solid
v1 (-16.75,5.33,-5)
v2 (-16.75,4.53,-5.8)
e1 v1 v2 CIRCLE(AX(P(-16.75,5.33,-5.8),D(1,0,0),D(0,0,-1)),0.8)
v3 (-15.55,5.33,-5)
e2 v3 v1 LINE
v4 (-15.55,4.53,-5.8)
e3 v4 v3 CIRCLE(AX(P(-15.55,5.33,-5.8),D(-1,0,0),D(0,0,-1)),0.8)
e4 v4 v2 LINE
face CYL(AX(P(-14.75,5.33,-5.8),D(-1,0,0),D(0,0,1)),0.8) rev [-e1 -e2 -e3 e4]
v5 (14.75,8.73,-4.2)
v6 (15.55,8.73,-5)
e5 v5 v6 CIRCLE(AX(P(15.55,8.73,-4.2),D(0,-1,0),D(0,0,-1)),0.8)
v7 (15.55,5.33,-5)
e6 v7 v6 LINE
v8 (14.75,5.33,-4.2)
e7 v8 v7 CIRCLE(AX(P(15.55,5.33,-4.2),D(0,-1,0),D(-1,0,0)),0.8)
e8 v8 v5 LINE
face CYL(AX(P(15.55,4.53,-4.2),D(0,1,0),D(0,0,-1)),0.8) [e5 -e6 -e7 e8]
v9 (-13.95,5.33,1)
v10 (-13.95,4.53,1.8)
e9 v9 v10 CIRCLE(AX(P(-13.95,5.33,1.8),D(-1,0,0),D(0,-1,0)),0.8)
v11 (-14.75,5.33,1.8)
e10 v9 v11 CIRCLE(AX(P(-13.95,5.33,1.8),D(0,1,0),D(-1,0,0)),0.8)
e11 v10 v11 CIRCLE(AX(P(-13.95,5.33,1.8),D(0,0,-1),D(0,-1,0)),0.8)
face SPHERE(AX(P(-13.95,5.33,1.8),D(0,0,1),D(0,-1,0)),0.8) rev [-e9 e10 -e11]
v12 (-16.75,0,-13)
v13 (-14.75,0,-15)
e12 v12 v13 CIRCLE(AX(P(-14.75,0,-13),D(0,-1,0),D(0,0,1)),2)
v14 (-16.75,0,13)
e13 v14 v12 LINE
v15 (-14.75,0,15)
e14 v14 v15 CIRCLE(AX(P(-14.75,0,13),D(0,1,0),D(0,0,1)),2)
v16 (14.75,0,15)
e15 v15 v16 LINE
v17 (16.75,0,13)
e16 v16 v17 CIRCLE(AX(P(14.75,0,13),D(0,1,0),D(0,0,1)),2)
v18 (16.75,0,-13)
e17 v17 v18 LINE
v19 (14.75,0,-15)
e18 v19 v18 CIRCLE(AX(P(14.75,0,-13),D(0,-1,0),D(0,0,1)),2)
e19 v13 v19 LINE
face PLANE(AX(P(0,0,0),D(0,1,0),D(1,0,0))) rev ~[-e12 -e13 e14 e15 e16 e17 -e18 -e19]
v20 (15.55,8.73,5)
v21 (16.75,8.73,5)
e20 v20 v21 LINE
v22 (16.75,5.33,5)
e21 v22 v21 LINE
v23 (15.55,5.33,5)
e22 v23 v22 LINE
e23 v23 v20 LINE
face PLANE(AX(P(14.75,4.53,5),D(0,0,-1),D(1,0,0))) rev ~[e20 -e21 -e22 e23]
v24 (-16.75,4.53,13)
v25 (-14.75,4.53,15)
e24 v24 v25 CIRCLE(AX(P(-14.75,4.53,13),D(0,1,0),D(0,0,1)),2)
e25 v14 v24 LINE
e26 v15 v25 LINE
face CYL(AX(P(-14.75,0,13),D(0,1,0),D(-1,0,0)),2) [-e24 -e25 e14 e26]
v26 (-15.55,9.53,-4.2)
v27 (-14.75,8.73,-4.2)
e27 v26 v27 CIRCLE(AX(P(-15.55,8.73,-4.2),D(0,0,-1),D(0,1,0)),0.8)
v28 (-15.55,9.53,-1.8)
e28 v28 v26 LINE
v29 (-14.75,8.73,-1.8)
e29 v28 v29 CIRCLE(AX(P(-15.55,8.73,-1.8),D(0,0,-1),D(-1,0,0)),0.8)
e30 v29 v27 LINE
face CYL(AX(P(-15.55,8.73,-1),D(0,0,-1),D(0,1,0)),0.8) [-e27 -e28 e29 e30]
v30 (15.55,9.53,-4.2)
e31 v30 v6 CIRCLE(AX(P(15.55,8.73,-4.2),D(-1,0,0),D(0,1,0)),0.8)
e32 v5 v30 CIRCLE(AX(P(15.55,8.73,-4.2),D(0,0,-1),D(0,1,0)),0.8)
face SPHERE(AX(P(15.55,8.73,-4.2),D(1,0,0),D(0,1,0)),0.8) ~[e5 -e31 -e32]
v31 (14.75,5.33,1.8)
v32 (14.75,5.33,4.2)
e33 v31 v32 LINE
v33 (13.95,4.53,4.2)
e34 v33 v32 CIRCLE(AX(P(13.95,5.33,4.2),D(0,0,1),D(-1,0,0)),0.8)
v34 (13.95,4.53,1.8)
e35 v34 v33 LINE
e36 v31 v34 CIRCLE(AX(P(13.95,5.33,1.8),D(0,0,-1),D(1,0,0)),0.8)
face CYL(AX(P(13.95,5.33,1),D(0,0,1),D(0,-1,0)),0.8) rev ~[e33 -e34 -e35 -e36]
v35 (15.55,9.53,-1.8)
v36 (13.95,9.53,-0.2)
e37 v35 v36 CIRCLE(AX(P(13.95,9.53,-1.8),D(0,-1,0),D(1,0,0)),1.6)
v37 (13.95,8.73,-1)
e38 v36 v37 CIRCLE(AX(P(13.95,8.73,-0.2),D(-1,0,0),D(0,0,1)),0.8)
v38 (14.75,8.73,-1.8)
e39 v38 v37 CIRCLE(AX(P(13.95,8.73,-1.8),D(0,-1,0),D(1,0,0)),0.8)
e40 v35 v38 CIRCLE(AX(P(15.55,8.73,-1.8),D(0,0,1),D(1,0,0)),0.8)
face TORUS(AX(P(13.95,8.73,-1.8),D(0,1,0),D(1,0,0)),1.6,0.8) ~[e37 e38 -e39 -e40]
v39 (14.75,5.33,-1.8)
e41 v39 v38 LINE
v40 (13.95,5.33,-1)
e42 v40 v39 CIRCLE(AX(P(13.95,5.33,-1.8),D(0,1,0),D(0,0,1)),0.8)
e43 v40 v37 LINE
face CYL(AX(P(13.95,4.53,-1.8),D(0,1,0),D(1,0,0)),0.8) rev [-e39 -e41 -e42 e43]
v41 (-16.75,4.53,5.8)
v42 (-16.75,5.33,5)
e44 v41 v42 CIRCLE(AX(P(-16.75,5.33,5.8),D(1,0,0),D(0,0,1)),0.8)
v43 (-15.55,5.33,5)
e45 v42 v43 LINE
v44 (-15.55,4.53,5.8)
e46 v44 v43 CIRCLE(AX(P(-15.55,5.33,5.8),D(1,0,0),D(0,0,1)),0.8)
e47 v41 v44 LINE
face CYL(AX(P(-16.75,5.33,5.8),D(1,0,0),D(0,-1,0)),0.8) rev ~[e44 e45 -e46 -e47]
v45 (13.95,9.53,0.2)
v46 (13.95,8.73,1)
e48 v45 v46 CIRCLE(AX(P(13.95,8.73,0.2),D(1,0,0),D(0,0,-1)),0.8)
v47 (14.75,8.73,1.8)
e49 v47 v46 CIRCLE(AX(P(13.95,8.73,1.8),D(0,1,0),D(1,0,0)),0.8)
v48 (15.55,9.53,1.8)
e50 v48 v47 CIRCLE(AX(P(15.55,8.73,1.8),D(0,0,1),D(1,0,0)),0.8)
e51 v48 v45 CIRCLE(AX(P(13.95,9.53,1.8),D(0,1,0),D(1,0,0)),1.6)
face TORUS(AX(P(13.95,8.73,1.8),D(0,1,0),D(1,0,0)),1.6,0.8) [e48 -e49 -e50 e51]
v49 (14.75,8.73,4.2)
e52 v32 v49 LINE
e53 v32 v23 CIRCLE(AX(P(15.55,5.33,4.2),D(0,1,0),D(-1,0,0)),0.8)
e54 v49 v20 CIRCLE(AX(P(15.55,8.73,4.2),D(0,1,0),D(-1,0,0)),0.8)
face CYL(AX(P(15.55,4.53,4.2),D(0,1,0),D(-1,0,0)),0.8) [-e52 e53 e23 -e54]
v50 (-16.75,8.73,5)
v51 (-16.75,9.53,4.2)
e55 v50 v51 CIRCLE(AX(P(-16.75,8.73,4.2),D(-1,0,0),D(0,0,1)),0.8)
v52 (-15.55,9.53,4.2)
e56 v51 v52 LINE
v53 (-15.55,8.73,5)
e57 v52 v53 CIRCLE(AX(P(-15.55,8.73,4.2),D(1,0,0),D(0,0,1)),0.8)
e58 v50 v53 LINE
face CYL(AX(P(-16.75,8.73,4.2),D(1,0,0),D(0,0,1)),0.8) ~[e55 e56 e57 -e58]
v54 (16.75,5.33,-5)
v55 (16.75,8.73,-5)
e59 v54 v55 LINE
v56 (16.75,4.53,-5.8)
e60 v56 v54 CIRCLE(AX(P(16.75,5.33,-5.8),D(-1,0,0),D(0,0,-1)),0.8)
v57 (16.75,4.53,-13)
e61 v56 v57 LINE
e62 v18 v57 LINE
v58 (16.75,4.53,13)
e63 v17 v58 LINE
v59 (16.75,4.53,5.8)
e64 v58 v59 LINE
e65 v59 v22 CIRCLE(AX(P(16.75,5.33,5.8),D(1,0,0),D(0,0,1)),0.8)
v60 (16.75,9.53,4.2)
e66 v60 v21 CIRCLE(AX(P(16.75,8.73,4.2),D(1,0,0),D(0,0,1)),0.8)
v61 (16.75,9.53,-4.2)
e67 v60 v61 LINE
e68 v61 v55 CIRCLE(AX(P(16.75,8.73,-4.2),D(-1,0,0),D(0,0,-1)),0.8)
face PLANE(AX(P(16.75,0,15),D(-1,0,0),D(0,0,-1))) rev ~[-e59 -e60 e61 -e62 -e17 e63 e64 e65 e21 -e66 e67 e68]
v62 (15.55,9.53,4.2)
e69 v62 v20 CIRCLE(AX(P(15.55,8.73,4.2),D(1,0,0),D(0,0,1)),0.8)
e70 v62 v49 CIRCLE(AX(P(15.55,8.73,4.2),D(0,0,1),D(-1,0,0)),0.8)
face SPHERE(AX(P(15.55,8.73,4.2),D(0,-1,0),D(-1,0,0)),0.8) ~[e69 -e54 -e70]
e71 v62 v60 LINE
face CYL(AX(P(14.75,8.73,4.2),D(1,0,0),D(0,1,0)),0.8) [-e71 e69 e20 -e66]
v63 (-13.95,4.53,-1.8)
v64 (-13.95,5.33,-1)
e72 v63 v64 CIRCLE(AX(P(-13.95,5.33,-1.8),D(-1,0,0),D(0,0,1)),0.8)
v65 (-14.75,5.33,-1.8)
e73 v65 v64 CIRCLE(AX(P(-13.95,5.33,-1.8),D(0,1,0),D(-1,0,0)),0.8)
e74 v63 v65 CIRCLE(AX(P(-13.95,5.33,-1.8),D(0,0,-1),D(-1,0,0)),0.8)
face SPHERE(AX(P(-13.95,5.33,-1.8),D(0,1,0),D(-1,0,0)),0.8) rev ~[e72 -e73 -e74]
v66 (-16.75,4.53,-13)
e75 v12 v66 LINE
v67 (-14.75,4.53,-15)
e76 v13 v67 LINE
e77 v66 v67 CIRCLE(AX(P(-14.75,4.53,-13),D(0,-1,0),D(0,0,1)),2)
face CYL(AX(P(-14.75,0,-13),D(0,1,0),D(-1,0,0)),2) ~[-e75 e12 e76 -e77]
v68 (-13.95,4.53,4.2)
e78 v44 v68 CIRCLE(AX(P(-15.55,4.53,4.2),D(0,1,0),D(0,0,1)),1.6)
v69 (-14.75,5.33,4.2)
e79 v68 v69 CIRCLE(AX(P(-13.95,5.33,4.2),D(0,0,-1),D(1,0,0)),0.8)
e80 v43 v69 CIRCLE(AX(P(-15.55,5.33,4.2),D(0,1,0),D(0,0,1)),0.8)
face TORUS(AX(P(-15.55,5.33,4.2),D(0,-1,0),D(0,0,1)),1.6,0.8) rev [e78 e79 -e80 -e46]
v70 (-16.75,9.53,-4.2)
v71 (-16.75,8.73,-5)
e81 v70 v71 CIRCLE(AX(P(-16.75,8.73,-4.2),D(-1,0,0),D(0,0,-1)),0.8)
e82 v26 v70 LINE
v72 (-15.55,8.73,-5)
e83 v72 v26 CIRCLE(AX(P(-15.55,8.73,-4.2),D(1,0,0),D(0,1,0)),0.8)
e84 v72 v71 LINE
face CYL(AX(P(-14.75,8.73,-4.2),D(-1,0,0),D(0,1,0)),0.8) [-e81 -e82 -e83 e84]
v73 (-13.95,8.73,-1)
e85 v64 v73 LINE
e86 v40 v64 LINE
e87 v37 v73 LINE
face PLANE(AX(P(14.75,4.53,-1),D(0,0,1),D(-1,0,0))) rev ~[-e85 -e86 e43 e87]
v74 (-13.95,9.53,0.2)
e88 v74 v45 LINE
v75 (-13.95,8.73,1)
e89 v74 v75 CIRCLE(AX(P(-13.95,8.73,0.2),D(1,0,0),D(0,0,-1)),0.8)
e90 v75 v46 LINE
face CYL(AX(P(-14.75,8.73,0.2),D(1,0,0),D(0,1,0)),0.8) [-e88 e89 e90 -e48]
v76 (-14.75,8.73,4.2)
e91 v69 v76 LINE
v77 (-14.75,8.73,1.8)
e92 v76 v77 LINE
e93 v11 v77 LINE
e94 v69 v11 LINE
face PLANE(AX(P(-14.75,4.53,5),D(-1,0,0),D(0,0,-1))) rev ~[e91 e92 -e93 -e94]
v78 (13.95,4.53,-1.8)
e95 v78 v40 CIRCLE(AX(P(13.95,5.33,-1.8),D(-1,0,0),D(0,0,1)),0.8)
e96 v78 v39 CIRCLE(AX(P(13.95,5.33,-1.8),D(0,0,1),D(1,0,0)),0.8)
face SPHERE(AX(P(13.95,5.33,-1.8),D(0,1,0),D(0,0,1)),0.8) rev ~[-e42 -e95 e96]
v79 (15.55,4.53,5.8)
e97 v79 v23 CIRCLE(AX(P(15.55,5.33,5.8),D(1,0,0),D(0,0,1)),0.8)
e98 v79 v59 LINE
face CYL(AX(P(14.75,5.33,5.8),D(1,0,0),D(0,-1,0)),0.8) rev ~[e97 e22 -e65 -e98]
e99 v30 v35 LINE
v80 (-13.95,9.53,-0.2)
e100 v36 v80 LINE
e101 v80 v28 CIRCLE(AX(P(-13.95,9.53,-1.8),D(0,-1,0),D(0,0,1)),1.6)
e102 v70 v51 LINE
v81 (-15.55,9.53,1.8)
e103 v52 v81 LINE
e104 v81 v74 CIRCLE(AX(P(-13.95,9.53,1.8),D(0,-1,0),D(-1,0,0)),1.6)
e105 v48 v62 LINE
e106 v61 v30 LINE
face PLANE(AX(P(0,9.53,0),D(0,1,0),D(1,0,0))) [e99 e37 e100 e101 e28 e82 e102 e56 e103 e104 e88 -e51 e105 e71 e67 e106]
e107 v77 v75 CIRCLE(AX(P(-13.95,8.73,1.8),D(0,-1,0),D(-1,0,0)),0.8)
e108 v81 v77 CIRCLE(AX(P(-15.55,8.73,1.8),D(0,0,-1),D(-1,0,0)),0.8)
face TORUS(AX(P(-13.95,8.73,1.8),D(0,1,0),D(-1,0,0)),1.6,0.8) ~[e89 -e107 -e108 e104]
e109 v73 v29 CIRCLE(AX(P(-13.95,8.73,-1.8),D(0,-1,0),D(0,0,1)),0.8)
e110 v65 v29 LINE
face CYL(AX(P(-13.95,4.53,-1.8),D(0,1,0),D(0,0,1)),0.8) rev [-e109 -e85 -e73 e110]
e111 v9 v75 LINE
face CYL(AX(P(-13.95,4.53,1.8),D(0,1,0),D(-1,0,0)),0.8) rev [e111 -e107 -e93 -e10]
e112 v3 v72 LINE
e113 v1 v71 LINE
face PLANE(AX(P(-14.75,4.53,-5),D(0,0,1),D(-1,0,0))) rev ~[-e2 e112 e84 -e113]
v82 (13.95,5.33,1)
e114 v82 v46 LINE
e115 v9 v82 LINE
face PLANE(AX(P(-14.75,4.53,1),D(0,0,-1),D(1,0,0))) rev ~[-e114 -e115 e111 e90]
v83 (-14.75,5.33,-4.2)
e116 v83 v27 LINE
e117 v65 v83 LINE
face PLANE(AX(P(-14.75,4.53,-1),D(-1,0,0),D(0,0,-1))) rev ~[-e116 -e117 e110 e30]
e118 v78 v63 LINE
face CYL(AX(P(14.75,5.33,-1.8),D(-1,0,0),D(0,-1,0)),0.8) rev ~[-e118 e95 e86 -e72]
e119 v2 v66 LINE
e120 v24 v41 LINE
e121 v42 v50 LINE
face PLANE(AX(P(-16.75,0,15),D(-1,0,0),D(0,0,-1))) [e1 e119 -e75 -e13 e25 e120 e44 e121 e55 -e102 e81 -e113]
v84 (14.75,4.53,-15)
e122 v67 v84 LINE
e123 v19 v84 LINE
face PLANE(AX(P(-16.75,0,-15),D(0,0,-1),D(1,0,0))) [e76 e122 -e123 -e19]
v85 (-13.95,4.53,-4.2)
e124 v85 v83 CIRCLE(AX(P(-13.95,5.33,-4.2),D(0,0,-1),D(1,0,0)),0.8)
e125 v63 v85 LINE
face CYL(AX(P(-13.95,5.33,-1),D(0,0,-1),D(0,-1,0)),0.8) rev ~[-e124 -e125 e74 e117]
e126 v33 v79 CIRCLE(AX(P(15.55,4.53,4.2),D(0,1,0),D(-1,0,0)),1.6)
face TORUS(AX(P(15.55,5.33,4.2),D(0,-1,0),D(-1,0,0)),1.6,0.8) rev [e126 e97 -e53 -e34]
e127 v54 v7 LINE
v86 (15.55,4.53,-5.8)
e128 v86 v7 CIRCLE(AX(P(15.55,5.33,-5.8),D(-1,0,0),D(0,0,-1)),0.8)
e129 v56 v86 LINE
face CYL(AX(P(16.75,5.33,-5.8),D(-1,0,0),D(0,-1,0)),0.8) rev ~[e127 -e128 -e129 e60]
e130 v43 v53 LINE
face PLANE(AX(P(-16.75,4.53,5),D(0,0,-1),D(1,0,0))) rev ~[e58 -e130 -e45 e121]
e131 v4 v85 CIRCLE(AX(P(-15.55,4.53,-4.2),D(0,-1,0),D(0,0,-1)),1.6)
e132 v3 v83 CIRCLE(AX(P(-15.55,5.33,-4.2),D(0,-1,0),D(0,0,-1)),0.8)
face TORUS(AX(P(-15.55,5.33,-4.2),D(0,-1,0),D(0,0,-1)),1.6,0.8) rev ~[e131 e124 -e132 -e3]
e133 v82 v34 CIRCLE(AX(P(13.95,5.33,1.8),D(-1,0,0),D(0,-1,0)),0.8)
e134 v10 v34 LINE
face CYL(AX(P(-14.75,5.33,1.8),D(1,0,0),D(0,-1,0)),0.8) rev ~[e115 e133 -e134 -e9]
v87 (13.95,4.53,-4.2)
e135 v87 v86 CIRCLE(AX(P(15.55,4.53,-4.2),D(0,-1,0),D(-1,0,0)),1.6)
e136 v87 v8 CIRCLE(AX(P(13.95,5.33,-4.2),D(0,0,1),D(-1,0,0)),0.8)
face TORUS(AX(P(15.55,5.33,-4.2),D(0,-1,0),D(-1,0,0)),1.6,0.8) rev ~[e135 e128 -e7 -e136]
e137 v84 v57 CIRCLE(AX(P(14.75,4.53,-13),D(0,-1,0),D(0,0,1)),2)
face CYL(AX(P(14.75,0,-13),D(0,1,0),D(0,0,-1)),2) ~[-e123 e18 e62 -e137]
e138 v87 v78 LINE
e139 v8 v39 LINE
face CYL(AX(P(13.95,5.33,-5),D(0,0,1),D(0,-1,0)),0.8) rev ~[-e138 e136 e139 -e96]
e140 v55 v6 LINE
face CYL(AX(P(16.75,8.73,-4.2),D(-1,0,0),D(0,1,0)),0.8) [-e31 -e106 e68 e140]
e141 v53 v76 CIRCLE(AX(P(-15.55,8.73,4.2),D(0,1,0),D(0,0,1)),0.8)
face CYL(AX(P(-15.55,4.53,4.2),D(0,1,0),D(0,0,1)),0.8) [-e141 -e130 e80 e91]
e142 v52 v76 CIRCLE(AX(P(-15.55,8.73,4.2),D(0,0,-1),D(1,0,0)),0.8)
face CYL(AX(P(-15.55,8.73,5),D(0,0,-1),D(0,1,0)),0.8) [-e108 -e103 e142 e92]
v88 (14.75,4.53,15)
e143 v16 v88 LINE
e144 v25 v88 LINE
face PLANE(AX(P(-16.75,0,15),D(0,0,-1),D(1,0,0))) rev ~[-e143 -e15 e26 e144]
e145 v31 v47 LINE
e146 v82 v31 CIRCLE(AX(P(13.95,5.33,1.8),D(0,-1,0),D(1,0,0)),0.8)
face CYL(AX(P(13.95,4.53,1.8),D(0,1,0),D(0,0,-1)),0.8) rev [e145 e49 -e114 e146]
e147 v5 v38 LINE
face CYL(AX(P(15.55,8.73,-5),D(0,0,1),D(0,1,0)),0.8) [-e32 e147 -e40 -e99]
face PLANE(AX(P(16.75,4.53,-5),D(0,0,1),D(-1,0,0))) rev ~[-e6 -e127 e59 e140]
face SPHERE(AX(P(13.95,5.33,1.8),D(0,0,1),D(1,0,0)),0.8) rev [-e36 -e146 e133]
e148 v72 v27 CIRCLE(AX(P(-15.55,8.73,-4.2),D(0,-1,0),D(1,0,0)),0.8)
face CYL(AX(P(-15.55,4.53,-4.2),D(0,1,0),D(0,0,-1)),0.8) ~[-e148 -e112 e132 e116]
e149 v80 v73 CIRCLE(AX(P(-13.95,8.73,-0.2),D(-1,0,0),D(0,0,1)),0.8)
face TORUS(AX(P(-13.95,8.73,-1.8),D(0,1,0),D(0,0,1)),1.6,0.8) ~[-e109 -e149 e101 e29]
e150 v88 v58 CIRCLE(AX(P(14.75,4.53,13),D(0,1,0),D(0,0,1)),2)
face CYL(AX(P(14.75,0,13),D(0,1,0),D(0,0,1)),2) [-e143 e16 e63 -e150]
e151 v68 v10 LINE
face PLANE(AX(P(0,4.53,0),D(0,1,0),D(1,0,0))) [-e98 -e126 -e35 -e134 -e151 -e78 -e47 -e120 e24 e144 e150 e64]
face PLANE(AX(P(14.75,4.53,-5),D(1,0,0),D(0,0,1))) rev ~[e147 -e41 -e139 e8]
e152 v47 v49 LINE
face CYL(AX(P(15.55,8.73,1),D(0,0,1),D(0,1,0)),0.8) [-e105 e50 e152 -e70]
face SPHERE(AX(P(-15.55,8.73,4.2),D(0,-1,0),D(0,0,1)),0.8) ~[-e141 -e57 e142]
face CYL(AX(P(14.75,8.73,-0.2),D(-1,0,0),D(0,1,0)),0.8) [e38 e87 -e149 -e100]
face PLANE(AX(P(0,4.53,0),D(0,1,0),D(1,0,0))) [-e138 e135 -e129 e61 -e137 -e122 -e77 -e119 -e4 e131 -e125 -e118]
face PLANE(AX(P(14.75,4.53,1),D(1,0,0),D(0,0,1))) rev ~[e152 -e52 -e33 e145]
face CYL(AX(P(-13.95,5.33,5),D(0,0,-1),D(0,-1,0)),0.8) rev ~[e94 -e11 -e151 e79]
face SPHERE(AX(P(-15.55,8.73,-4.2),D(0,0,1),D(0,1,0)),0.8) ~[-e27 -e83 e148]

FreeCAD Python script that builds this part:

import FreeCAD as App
import Part
import Sketcher
from FreeCAD import Vector
Q = App.Units.Quantity


def edges_at(feature, points):
    """Names of the edges that pass closest to the given points."""
    edges = feature.Shape.Edges
    near = lambda p: min(range(len(edges)), key=lambda i: edges[i].distToShape(Part.Vertex(*p))[0])
    return sorted({f"Edge{near(p) + 1}" for p in points})


def add_polygon(sketch, points):
    """Adds a closed chain of lines whose ends are joined by coincident constraints."""
    first, n = sketch.GeometryCount, len(points)
    for a, b in zip(points, points[1:] + points[:1]):
        sketch.addGeometry(Part.LineSegment(App.Vector(*a, 0), App.Vector(*b, 0)), False)
    for i in range(n):
        sketch.addConstraint(Sketcher.Constraint("Coincident", first + i, 2, first + (i + 1) % n, 1))

doc = App.newDocument("Part")
body = doc.addObject("PartDesign::Body", "Body")

sketch1 = body.newObject("Sketcher::SketchObject", "Sketch")
sketch1.AttachmentSupport = (doc.getObject("XZ_Plane"), [""])
sketch1.MapMode = "FlatFace"
add_polygon(sketch1, [(-17, -15), (-17, 15), (17, 15), (17, -15)])
sketch1.addConstraint(Sketcher.Constraint("Vertical", 0))
sketch1.addConstraint(Sketcher.Constraint("Horizontal", 1))
sketch1.addConstraint(Sketcher.Constraint("Vertical", 2))
sketch1.addConstraint(Sketcher.Constraint("Horizontal", 3))
sketch1.addConstraint(Sketcher.Constraint("Symmetric", 0, 2, 2, 2, -1, 1))
sketch1.addConstraint(Sketcher.Constraint("DistanceY", 0, 1, 0, 2, Q("30 mm")))
sketch1.addConstraint(Sketcher.Constraint("DistanceX", 1, 1, 1, 2, Q("33.5 mm")))
pad1 = body.newObject("PartDesign::Pad", "Pad")
pad1.Profile = sketch1
pad1.Length = 4.53
pad1.Reversed = True

sketch2 = body.newObject("Sketcher::SketchObject", "Sketch001")
sketch2.AttachmentSupport = (doc.getObject("XZ_Plane"), [""])
sketch2.MapMode = "FlatFace"
sketch2.AttachmentOffset = App.Placement(Vector(0, 0, -4.53), App.Rotation())
add_polygon(sketch2, [(-14.8, -5), (-16.8, -5), (-16.8, 5), (-14.8, 5), (-14.8, 1), (14.8, 1), (14.8, 5), (16.8, 5), (16.8, -5), (14.8, -5), (14.8, -1), (-14.8, -1)])
sketch2.addConstraint(Sketcher.Constraint("Horizontal", 0))
sketch2.addConstraint(Sketcher.Constraint("Vertical", 1))
sketch2.addConstraint(Sketcher.Constraint("Horizontal", 2))
sketch2.addConstraint(Sketcher.Constraint("Vertical", 3))
sketch2.addConstraint(Sketcher.Constraint("Horizontal", 4))
sketch2.addConstraint(Sketcher.Constraint("Vertical", 5))
sketch2.addConstraint(Sketcher.Constraint("Horizontal", 6))
sketch2.addConstraint(Sketcher.Constraint("Vertical", 7))
sketch2.addConstraint(Sketcher.Constraint("Horizontal", 8))
sketch2.addConstraint(Sketcher.Constraint("Vertical", 9))
sketch2.addConstraint(Sketcher.Constraint("Horizontal", 10))
sketch2.addConstraint(Sketcher.Constraint("Vertical", 11))
sketch2.addConstraint(Sketcher.Constraint("Symmetric", 0, 2, 6, 2, -1, 1))
sketch2.addConstraint(Sketcher.Constraint("Symmetric", 2, 2, 8, 2, -1, 1))
sketch2.addConstraint(Sketcher.Constraint("Symmetric", 4, 2, 10, 2, -1, 1))
sketch2.addConstraint(Sketcher.Constraint("Symmetric", 2, 2, 5, 2, -2))
sketch2.addConstraint(Sketcher.Constraint("DistanceX", 0, 2, 0, 1, Q("2 mm")))
sketch2.addConstraint(Sketcher.Constraint("DistanceY", 1, 1, 1, 2, Q("10 mm")))
sketch2.addConstraint(Sketcher.Constraint("DistanceY", 3, 2, 3, 1, Q("4 mm")))
sketch2.addConstraint(Sketcher.Constraint("DistanceX", 4, 1, 4, 2, Q("29.5 mm")))
pad2 = body.newObject("PartDesign::Pad", "Pad001")
pad2.Profile = sketch2
pad2.Length = 5
pad2.Reversed = True
doc.recompute()

fillet = body.newObject("PartDesign::Fillet", "Fillet")
fillet.Base = (pad2, edges_at(pad2, [
    (16.75, 2.265, 15),
    (-16.75, 2.265, 15),
    (-16.75, 2.265, -15),
    (16.75, 2.265, -15),
]))
fillet.Radius = 2
doc.recompute()

fillet2 = body.newObject("PartDesign::Fillet", "Fillet001")
fillet2.Base = (fillet, edges_at(fillet, [
    (14.75, 4.53, 3),
    (14.75, 7.03, 1),
    (15.75, 4.53, 5),
    (14.75, 7.03, 5),
    (15.75, 9.53, -5),
    (14.75, 9.53, -3),
    (14.75, 7.03, -5),
    (0, 9.53, -1),
    (14.75, 7.03, -1),
    (-14.75, 9.53, -3),
    (-14.75, 7.03, -1),
    (-15.75, 9.53, -5),
    (-14.75, 7.03, -5),
    (-15.75, 4.53, 5),
    (-14.75, 4.53, 3),
    (-14.75, 7.03, 5),
    (0, 4.53, 1),
    (-14.75, 7.03, 1),
    (14.75, 9.53, 3),
    (15.75, 9.53, 5),
    (-15.75, 9.53, 5),
    (-14.75, 9.53, 3),
    (0, 9.53, 1),
    (-15.75, 4.53, -5),
    (-14.75, 4.53, -3),
    (0, 4.53, -1),
    (14.75, 4.53, -3),
    (15.75, 4.53, -5),
]))
fillet2.Radius = 0.8

doc.recompute()
